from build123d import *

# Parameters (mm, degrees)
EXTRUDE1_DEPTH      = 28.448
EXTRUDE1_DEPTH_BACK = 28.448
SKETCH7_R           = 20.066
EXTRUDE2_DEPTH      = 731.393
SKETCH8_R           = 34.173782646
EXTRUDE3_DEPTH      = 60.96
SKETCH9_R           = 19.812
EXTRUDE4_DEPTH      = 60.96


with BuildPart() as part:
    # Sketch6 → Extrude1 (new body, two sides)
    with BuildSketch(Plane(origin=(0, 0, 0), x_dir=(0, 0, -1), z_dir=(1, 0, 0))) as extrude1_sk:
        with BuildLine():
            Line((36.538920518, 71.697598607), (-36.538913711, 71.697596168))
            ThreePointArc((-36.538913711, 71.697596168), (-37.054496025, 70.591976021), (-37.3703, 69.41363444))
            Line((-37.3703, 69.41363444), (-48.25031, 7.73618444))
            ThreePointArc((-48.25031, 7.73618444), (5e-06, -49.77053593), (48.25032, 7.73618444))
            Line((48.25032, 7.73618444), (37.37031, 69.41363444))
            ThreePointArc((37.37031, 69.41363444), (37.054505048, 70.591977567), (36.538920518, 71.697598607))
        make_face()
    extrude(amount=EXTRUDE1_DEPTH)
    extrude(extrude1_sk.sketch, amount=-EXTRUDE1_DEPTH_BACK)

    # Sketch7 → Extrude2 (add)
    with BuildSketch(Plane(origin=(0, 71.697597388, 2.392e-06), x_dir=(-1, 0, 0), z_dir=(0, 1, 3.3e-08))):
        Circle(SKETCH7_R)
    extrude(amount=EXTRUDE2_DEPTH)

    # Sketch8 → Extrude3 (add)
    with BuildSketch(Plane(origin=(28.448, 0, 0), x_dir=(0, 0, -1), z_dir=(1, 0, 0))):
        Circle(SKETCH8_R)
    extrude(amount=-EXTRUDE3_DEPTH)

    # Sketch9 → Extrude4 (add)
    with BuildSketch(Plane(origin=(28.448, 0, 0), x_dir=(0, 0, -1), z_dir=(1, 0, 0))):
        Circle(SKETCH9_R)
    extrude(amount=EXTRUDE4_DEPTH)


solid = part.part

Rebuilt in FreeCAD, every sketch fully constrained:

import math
import FreeCAD as App
import Part
import Sketcher
from FreeCAD import Vector
Q = App.Units.Quantity

doc = App.newDocument("Part")
body = doc.addObject("PartDesign::Body", "Body")

# Sketch on YZ plane
sketch1 = body.newObject("Sketcher::SketchObject", "Sketch")
sketch1.AttachmentSupport = (doc.getObject("YZ_Plane"), [""])
sketch1.MapMode = "FlatFace"
sketch1.addGeometry([
    Part.LineSegment(Vector(71.697599, -36.538921, 0), Vector(71.697596, 36.538914, 0)),  # 0
    Part.ArcOfCircle(Part.Circle(Vector(68.197594, 30.476715, 0), Vector(0, 0, 1), 7.000019), math.radians(60.00007), math.radians(79.995845)),  # 1
    Part.LineSegment(Vector(69.413634, 37.3703, 0), Vector(7.736184, 48.25031, 0)),  # 2
    Part.ArcOfCircle(Part.Circle(Vector(-0.775255, -0.000005, 0), Vector(0, 0, 1), 48.99528), math.radians(79.995845), math.radians(280.004155)),  # 3
    Part.LineSegment(Vector(7.736184, -48.25032, 0), Vector(69.413634, -37.37031, 0)),  # 4
    Part.ArcOfCircle(Part.Circle(Vector(68.197598, -30.47675, 0), Vector(0, 0, 1), 6.999993), math.radians(-79.995845), math.radians(-59.999968)),  # 5
], False)
sketch1.addConstraint([
    Sketcher.Constraint("Coincident", 0, 2, 1, 1),
    Sketcher.Constraint("Coincident", 1, 2, 2, 1),
    Sketcher.Constraint("Coincident", 2, 2, 3, 1),
    Sketcher.Constraint("Coincident", 3, 2, 4, 1),
    Sketcher.Constraint("Coincident", 4, 2, 5, 1),
    Sketcher.Constraint("Coincident", 5, 2, 0, 1),
    Sketcher.Constraint("Radius", 1, Q("7.000019 mm")),
    Sketcher.Constraint("Radius", 3, Q("48.99528 mm")),
    Sketcher.Constraint("Radius", 5, Q("6.999993 mm")),
    Sketcher.Constraint("DistanceY", 4, 2, 5, 3, Q("0.2714 in")),
    Sketcher.Constraint("DistanceX", -1, 1, 5, 3, Q("68.197598 mm")),
    Sketcher.Constraint("DistanceY", -1, 1, 1, 2, Q("37.3703 mm")),
    Sketcher.Constraint("DistanceX", -1, 1, 5, 2, Q("71.697599 mm")),
    Sketcher.Constraint("DistanceY", 1, 3, 0, 2, Q("6.062199 mm")),
    Sketcher.Constraint("DistanceY", 3, 2, 5, 2, Q("11.711399 mm")),
    Sketcher.Constraint("DistanceY", 5, 3, -1, 1, Q("30.47675 mm")),
    Sketcher.Constraint("DistanceY", -1, 1, 2, 2, Q("48.25031 mm")),
    Sketcher.Constraint("DistanceX", 3, 3, 1, 3, Q("68.972849 mm")),
    Sketcher.Constraint("DistanceY", 3, 3, 1, 3, Q("30.47672 mm")),
    Sketcher.Constraint("DistanceX", 1, 2, 0, 2, Q("2.283962 mm")),
    Sketcher.Constraint("DistanceX", 3, 2, 4, 2, Q("61.67745 mm")),
])
pad1 = body.newObject("PartDesign::Pad", "Pad")
pad1.Profile = sketch1
pad1.Type = "TwoLengths"
pad1.Length = Q("1.12 in")
pad1.Length2 = Q("1.12 in")

# Sketch on XZ plane
sketch2 = body.newObject("Sketcher::SketchObject", "Sketch001")
sketch2.AttachmentSupport = (doc.getObject("XZ_Plane"), [""])
sketch2.MapMode = "FlatFace"
sketch2.AttachmentOffset = App.Placement(Vector(0, 0, -71.697597), App.Rotation())
sketch2.addGeometry(Part.Circle(Vector(0, 0, 0), Vector(0, 0, 1), 20), False)
sketch2.addConstraint([
    Sketcher.Constraint("Coincident", 0, 3, -1, 1),
    Sketcher.Constraint("Diameter", 0, Q("1.58 in")),
])
pad2 = body.newObject("PartDesign::Pad", "Pad001")
pad2.Profile = sketch2
pad2.Length = Q("28.795 in")
pad2.Reversed = True

# Sketch on YZ plane
sketch3 = body.newObject("Sketcher::SketchObject", "Sketch002")
sketch3.AttachmentSupport = (doc.getObject("YZ_Plane"), [""])
sketch3.MapMode = "FlatFace"
sketch3.AttachmentOffset = App.Placement(Vector(0, 0, 1.12 * 25.4), App.Rotation())
sketch3.addGeometry(Part.Circle(Vector(0, 0, 0), Vector(0, 0, 1), 34), False)
sketch3.addConstraint([
    Sketcher.Constraint("Coincident", 0, 3, -1, 1),
    Sketcher.Constraint("Diameter", 0, Q("68.347565 mm")),
])
pad3 = body.newObject("PartDesign::Pad", "Pad002")
pad3.Profile = sketch3
pad3.Length = Q("2.4 in")
pad3.Reversed = True

# Sketch on YZ plane
sketch4 = body.newObject("Sketcher::SketchObject", "Sketch003")
sketch4.AttachmentSupport = (doc.getObject("YZ_Plane"), [""])
sketch4.MapMode = "FlatFace"
sketch4.AttachmentOffset = App.Placement(Vector(0, 0, 1.12 * 25.4), App.Rotation())
sketch4.addGeometry(Part.Circle(Vector(0, 0, 0), Vector(0, 0, 1), 20), False)
sketch4.addConstraint([
    Sketcher.Constraint("Coincident", 0, 3, -1, 1),
    Sketcher.Constraint("Diameter", 0, Q("1.56 in")),
])
pad4 = body.newObject("PartDesign::Pad", "Pad003")
pad4.Profile = sketch4
pad4.Length = Q("2.4 in")

doc.recompute()
